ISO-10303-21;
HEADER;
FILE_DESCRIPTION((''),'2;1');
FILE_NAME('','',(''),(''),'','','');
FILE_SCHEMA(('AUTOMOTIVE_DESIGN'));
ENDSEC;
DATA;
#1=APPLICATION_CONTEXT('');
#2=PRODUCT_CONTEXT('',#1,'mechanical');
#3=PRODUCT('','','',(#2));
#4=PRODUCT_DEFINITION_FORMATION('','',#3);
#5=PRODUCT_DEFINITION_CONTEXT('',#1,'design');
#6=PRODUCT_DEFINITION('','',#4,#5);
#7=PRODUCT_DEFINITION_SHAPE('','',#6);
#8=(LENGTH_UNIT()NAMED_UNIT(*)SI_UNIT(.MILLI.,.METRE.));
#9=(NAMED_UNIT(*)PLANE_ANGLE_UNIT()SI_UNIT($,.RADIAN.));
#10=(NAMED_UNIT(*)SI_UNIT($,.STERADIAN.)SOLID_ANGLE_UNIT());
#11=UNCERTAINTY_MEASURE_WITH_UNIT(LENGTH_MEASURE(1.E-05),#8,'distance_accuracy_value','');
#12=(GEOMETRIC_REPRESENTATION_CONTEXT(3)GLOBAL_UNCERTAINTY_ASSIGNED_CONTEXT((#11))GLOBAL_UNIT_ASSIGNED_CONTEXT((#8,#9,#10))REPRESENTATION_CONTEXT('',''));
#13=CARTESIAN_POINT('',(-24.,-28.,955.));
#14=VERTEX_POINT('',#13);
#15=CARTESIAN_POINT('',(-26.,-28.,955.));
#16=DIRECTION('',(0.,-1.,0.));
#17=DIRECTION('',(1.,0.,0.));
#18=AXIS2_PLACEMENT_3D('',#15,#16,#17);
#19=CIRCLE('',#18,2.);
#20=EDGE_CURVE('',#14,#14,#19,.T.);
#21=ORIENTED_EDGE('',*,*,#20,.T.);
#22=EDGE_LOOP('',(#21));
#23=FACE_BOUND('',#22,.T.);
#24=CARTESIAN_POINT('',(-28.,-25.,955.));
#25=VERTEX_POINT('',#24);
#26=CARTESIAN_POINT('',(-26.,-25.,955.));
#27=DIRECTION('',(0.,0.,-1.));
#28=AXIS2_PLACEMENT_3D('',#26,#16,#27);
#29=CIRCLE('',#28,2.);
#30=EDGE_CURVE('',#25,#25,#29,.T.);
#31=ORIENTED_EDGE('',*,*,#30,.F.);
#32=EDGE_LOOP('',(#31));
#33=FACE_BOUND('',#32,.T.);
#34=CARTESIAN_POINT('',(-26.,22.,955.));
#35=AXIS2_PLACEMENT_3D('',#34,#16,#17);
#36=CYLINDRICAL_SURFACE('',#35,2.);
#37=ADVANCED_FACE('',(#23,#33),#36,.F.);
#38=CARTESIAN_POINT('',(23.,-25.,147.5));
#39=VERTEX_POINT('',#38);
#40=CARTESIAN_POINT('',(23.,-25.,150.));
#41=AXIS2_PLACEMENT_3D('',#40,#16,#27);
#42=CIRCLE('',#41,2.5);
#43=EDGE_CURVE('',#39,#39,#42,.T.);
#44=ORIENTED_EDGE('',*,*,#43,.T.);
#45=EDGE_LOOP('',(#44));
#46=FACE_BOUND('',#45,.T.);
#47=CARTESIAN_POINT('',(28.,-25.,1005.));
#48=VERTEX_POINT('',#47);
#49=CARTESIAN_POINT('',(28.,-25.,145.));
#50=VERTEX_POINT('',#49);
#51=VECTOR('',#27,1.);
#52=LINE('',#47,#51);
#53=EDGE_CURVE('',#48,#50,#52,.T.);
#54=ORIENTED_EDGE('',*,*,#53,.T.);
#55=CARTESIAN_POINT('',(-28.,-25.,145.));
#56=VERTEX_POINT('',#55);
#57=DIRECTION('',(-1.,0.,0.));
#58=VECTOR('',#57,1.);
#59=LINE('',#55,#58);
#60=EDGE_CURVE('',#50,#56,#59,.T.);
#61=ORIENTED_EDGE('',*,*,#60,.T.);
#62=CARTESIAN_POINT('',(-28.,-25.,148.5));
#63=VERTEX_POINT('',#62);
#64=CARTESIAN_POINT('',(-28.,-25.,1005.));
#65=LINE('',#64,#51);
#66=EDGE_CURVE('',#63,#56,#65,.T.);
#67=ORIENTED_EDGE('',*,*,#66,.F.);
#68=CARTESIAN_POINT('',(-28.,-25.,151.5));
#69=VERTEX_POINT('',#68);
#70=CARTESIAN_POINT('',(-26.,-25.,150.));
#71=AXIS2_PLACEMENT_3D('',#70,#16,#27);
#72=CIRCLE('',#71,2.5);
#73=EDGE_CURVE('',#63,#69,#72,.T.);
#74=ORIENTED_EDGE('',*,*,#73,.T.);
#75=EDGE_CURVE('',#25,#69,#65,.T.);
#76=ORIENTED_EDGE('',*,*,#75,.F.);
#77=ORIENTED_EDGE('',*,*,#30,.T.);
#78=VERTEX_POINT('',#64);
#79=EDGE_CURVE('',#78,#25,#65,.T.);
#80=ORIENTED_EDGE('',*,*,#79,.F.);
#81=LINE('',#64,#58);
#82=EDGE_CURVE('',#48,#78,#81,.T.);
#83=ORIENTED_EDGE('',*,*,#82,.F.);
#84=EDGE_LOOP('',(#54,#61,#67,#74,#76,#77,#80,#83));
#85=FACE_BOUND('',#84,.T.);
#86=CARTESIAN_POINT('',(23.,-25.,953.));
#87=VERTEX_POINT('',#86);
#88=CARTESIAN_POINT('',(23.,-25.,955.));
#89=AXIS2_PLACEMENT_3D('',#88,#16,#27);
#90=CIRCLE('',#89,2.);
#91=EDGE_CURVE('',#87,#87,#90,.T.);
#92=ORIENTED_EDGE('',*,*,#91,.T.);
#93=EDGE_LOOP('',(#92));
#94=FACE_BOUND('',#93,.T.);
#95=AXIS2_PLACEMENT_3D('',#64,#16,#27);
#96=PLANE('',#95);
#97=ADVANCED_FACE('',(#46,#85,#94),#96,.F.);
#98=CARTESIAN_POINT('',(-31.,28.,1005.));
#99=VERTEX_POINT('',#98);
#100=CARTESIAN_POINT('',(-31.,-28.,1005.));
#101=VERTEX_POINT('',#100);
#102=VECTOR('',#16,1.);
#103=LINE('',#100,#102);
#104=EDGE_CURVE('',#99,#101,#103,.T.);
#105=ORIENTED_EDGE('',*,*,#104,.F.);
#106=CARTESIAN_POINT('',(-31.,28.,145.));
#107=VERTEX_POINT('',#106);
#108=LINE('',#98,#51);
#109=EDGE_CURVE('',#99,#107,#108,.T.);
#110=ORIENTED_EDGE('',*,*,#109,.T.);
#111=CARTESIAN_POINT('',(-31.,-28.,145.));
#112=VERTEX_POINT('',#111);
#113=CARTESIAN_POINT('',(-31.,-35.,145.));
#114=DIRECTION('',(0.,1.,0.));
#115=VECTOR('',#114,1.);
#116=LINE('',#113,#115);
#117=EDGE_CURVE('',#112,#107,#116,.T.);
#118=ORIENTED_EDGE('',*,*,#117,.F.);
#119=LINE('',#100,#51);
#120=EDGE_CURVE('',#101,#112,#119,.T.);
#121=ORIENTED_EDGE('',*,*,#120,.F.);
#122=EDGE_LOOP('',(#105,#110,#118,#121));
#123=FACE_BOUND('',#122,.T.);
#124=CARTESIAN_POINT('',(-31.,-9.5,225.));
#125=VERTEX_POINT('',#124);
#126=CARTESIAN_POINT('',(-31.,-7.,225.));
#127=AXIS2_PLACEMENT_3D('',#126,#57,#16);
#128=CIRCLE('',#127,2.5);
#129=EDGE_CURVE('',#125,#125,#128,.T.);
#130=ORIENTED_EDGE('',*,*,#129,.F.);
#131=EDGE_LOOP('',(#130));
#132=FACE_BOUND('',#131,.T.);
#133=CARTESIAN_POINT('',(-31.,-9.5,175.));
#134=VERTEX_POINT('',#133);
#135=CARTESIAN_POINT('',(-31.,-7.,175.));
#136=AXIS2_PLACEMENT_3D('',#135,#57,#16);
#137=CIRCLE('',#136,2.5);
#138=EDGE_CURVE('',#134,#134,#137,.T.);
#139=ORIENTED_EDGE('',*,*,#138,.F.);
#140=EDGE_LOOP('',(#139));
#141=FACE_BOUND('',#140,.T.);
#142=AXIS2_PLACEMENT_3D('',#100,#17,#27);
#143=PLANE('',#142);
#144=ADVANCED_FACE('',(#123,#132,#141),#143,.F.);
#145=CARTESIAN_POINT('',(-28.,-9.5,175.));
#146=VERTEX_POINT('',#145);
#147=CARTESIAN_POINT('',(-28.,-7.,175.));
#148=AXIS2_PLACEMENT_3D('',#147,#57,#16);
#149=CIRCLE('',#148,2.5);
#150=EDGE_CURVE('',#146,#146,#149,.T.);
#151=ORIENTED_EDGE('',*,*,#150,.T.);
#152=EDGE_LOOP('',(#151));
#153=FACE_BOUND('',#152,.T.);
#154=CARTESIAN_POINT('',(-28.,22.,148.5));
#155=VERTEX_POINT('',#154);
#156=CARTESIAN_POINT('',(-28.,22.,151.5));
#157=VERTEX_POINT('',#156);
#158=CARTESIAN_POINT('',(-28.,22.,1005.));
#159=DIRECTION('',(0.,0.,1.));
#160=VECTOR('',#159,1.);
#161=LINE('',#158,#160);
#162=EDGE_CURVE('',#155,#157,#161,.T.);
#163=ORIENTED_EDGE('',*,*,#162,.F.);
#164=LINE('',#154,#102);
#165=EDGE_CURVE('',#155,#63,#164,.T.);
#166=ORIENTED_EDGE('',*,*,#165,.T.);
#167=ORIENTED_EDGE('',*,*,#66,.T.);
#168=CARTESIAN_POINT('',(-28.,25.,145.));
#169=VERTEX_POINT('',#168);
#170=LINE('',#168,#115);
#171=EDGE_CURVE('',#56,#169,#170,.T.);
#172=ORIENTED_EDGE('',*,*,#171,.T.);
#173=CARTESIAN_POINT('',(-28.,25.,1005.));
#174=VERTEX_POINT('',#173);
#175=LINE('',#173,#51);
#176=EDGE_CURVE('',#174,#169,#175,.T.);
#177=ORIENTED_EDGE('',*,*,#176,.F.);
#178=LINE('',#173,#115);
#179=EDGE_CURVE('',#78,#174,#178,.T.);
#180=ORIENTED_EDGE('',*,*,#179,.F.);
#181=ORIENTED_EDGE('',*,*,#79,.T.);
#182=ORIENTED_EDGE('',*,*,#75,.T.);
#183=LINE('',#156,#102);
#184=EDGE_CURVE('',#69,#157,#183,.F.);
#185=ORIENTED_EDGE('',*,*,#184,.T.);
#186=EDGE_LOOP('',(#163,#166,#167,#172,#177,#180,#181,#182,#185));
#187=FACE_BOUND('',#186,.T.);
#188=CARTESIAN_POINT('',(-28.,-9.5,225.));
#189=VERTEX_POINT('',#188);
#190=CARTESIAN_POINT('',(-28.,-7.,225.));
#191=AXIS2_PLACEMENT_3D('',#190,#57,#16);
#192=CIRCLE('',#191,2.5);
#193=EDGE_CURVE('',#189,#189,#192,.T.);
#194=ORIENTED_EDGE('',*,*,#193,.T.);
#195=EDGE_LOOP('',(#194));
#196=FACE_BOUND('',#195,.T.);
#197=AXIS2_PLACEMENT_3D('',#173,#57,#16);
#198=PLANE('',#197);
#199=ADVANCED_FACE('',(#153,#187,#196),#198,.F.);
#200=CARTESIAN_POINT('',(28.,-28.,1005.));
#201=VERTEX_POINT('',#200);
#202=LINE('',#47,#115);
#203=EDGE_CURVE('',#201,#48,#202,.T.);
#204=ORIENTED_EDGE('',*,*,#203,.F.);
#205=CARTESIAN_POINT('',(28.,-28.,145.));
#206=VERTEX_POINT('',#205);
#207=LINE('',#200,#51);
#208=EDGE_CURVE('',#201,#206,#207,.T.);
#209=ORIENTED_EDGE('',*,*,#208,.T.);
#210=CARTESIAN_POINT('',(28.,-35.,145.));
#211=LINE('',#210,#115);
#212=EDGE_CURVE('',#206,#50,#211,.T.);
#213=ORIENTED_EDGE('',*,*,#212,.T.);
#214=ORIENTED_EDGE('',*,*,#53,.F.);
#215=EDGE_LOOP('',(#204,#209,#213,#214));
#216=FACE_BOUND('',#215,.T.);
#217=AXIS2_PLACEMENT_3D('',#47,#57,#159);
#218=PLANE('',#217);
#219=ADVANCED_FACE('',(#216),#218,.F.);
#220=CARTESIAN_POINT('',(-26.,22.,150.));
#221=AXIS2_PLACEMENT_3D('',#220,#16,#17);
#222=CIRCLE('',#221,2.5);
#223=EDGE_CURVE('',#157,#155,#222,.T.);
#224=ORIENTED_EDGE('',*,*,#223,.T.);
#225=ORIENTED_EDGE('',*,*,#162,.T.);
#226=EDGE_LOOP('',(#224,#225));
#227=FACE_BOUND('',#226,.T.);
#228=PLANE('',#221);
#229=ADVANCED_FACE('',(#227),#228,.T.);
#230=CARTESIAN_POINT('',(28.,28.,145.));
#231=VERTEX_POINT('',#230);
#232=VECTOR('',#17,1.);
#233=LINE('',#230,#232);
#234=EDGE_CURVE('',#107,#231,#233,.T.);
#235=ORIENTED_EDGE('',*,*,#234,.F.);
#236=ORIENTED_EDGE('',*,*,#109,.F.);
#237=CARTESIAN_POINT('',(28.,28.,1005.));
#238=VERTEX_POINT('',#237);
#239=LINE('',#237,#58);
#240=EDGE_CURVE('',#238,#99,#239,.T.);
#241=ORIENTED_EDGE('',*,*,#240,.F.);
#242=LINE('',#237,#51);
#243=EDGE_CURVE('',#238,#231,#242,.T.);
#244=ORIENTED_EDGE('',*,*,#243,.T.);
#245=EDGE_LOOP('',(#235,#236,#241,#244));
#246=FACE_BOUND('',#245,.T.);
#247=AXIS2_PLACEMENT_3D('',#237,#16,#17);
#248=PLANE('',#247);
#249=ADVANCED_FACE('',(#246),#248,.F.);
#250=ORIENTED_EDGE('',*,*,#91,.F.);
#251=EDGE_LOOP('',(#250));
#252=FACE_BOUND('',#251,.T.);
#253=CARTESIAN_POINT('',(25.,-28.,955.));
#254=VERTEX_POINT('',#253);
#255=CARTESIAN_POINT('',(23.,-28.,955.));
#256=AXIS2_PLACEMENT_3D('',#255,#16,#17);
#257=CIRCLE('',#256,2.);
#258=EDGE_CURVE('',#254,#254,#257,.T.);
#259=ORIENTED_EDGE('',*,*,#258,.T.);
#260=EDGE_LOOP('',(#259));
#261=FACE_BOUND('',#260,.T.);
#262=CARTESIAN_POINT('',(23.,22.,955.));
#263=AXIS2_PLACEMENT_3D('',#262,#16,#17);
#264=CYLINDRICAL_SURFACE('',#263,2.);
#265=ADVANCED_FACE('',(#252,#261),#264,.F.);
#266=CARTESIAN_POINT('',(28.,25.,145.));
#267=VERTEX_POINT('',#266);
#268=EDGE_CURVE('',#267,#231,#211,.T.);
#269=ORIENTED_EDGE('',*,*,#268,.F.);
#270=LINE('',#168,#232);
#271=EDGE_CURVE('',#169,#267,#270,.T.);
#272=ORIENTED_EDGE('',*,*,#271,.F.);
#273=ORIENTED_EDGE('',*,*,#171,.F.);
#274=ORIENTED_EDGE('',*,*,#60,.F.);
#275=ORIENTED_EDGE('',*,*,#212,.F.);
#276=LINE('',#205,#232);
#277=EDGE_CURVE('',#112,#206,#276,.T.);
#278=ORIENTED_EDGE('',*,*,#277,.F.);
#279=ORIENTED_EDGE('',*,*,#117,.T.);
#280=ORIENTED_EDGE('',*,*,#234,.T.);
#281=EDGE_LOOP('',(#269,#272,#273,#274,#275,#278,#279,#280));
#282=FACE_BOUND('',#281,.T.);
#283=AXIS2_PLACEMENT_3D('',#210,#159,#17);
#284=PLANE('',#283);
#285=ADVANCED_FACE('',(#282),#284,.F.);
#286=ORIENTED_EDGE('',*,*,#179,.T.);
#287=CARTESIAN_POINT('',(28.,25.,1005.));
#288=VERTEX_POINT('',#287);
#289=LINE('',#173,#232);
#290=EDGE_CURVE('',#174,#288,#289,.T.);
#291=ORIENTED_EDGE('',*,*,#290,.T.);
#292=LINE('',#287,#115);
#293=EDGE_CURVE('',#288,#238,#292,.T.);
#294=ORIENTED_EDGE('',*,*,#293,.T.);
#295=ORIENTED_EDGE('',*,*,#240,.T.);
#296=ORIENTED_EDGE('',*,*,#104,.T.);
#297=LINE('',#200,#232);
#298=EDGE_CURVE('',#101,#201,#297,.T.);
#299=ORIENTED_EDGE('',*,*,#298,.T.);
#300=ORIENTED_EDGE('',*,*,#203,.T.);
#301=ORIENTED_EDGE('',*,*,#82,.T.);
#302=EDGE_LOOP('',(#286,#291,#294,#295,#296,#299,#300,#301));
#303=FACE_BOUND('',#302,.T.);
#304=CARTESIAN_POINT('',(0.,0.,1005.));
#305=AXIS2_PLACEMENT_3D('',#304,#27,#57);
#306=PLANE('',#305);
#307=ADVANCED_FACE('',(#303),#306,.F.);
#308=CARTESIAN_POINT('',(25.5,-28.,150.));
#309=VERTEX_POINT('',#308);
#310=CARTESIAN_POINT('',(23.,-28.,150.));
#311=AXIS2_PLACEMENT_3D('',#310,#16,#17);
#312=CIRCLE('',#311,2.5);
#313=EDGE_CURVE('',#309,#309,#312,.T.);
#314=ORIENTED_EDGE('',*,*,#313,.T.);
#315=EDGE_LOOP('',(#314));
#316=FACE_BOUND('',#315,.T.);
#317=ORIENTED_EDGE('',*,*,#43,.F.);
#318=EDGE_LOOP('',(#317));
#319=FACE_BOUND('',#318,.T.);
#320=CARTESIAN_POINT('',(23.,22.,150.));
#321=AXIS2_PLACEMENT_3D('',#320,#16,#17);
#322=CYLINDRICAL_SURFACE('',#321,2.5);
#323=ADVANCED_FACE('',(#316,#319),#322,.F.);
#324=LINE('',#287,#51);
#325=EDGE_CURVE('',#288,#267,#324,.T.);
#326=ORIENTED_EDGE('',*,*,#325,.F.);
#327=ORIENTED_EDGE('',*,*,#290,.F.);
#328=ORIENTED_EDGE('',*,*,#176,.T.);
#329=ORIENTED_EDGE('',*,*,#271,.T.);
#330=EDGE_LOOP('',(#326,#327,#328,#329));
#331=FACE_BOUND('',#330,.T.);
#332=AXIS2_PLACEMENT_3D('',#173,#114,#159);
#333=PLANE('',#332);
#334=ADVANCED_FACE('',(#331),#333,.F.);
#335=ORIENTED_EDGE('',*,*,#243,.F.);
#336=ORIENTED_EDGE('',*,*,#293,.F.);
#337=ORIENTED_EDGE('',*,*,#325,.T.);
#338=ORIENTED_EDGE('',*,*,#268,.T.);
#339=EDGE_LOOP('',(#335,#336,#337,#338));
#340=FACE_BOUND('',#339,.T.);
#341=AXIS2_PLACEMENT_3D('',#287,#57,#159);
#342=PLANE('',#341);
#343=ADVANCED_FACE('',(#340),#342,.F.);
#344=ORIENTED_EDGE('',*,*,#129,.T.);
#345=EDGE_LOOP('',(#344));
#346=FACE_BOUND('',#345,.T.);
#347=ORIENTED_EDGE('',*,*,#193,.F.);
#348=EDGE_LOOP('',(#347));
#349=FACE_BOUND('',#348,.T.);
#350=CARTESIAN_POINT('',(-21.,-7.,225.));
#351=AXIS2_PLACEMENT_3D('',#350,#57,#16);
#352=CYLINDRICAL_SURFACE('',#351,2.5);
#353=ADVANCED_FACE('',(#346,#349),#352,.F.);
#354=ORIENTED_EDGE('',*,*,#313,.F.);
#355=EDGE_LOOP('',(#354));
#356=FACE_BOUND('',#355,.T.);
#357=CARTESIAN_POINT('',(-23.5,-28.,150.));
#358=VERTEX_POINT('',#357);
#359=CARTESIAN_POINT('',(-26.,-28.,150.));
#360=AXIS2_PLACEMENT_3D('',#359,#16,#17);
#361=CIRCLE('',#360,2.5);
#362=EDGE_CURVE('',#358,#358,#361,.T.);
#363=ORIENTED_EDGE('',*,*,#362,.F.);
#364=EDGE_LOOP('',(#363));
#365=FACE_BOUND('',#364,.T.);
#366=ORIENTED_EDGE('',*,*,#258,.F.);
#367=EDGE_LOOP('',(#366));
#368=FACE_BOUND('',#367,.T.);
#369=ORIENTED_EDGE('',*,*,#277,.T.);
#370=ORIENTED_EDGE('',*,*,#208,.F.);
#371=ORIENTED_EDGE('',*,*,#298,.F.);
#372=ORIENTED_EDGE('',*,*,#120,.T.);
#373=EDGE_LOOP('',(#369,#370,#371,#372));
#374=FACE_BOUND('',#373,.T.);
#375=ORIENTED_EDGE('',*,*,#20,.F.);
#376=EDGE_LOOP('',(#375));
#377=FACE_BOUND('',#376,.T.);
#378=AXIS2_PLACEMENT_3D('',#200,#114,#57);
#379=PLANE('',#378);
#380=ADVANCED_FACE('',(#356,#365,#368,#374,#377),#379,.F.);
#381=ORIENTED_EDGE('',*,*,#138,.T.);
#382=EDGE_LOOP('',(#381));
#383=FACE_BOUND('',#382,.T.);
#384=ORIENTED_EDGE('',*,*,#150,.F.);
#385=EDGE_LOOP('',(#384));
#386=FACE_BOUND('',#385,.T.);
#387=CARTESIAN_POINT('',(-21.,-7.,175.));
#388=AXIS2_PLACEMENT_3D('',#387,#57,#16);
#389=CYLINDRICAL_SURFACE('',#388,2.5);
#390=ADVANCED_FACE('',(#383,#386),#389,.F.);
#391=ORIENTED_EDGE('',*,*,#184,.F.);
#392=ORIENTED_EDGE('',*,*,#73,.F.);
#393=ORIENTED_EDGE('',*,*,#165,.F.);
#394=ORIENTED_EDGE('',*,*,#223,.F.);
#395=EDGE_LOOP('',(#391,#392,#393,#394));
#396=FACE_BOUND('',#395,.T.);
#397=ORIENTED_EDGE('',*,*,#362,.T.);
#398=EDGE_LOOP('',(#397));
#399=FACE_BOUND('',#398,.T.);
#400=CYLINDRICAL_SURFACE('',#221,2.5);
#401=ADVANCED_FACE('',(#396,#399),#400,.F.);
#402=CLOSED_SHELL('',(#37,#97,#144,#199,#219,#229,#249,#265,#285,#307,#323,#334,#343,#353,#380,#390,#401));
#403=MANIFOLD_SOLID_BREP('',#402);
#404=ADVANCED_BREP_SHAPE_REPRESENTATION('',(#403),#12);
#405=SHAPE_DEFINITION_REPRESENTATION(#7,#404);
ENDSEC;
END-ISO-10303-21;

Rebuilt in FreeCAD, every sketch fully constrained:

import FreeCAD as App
import Part
import Sketcher
from FreeCAD import Vector
Q = App.Units.Quantity


def add_polygon(sketch, points):
    """Adds a closed chain of lines whose ends are joined by coincident constraints."""
    first, n = sketch.GeometryCount, len(points)
    for a, b in zip(points, points[1:] + points[:1]):
        sketch.addGeometry(Part.LineSegment(App.Vector(*a, 0), App.Vector(*b, 0)), False)
    for i in range(n):
        sketch.addConstraint(Sketcher.Constraint("Coincident", first + i, 2, first + (i + 1) % n, 1))

doc = App.newDocument("Part")
body = doc.addObject("PartDesign::Body", "Body")

sketch1 = body.newObject("Sketcher::SketchObject", "Sketch")
sketch1.AttachmentSupport = (doc.getObject("XY_Plane"), [""])
sketch1.MapMode = "FlatFace"
add_polygon(sketch1, [(28, -28), (28, -25), (-28, -25), (-28, 25), (28, 25), (28, 28), (-31, 28), (-31, -28)])
sketch1.addConstraint(Sketcher.Constraint("Vertical", 0))
sketch1.addConstraint(Sketcher.Constraint("Horizontal", 1))
sketch1.addConstraint(Sketcher.Constraint("Vertical", 2))
sketch1.addConstraint(Sketcher.Constraint("Horizontal", 3))
sketch1.addConstraint(Sketcher.Constraint("Vertical", 4))
sketch1.addConstraint(Sketcher.Constraint("Horizontal", 5))
sketch1.addConstraint(Sketcher.Constraint("Vertical", 6))
sketch1.addConstraint(Sketcher.Constraint("Horizontal", 7))
sketch1.addConstraint(Sketcher.Constraint("Symmetric", 0, 2, 2, 2, -1, 1))
sketch1.addConstraint(Sketcher.Constraint("Symmetric", 4, 2, 7, 2, -1))
sketch1.addConstraint(Sketcher.Constraint("Equal", 3, 6))
sketch1.addConstraint(Sketcher.Constraint("DistanceX", 1, 2, 1, 1, Q("56 mm")))
sketch1.addConstraint(Sketcher.Constraint("DistanceX", 5, 2, 5, 1, Q("59 mm")))
sketch1.addConstraint(Sketcher.Constraint("DistanceY", 0, 1, 0, 2, Q("3 mm")))
pad1 = body.newObject("PartDesign::Pad", "Pad")
pad1.Profile = sketch1
pad1.Length = 1005

sketch2 = body.newObject("Sketcher::SketchObject", "Sketch001")
sketch2.AttachmentSupport = (doc.getObject("XZ_Plane"), [""])
sketch2.MapMode = "FlatFace"
sketch2.AttachmentOffset = App.Placement(Vector(0, 0, 28), App.Rotation())
sketch2.addGeometry(Part.Circle(Vector(23, 955, 0), Vector(0, 0, 1), 2), False)
sketch2.addGeometry(Part.Circle(Vector(-26, 955, 0), Vector(0, 0, 1), 2), False)
sketch2.addConstraint(Sketcher.Constraint("Equal", 0, 1))
sketch2.addConstraint(Sketcher.Constraint("Horizontal", 0, 3, 1, 3))
sketch2.addConstraint(Sketcher.Constraint("Diameter", 0, Q("4 mm")))
sketch2.addConstraint(Sketcher.Constraint("DistanceX", -1, 1, 0, 3, Q("23 mm")))
sketch2.addConstraint(Sketcher.Constraint("DistanceY", -1, 1, 0, 3, Q("955 mm")))
sketch2.addConstraint(Sketcher.Constraint("DistanceX", 1, 3, -1, 1, Q("26 mm")))
pocket1 = body.newObject("PartDesign::Pocket", "Pocket")
pocket1.Profile = sketch2
pocket1.Length = 50

sketch3 = body.newObject("Sketcher::SketchObject", "Sketch002")
sketch3.AttachmentSupport = (doc.getObject("XZ_Plane"), [""])
sketch3.MapMode = "FlatFace"
sketch3.AttachmentOffset = App.Placement(Vector(0, 0, 28), App.Rotation())
sketch3.addGeometry(Part.Circle(Vector(-26, 150, 0), Vector(0, 0, 1), 2.5), False)
sketch3.addGeometry(Part.Circle(Vector(23, 150, 0), Vector(0, 0, 1), 2.5), False)
sketch3.addConstraint(Sketcher.Constraint("Equal", 0, 1))
sketch3.addConstraint(Sketcher.Constraint("Horizontal", 0, 3, 1, 3))
sketch3.addConstraint(Sketcher.Constraint("Diameter", 0, Q("5 mm")))
sketch3.addConstraint(Sketcher.Constraint("DistanceX", 0, 3, -1, 1, Q("26 mm")))
sketch3.addConstraint(Sketcher.Constraint("DistanceY", -1, 1, 0, 3, Q("150 mm")))
sketch3.addConstraint(Sketcher.Constraint("DistanceX", -1, 1, 1, 3, Q("23 mm")))
pocket2 = body.newObject("PartDesign::Pocket", "Pocket001")
pocket2.Profile = sketch3
pocket2.Length = 50

sketch4 = body.newObject("Sketcher::SketchObject", "Sketch003")
sketch4.AttachmentSupport = (doc.getObject("XZ_Plane"), [""])
sketch4.MapMode = "FlatFace"
sketch4.AttachmentOffset = App.Placement(Vector(0, 0, -28), App.Rotation())
add_polygon(sketch4, [(-31, 0), (-31, 145), (28, 145), (28, 0)])
sketch4.addConstraint(Sketcher.Constraint("Vertical", 0))
sketch4.addConstraint(Sketcher.Constraint("Horizontal", 1))
sketch4.addConstraint(Sketcher.Constraint("Vertical", 2))
sketch4.addConstraint(Sketcher.Constraint("Horizontal", 3))
sketch4.addConstraint(Sketcher.Constraint("PointOnObject", 2, 2, -1))
sketch4.addConstraint(Sketcher.Constraint("DistanceX", 1, 1, 1, 2, Q("59 mm")))
sketch4.addConstraint(Sketcher.Constraint("DistanceY", 0, 1, 0, 2, Q("145 mm")))
sketch4.addConstraint(Sketcher.Constraint("DistanceX", 0, 2, -1, 1, Q("31 mm")))
pocket3 = body.newObject("PartDesign::Pocket", "Pocket002")
pocket3.Profile = sketch4
pocket3.Length = 63
pocket3.Reversed = True

sketch5 = body.newObject("Sketcher::SketchObject", "Sketch004")
sketch5.AttachmentSupport = (doc.getObject("YZ_Plane"), [""])
sketch5.MapMode = "FlatFace"
sketch5.AttachmentOffset = App.Placement(Vector(0, 0, -31), App.Rotation())
sketch5.addGeometry(Part.Circle(Vector(-7, 175, 0), Vector(0, 0, 1), 2.5), False)
sketch5.addGeometry(Part.Circle(Vector(-7, 225, 0), Vector(0, 0, 1), 2.5), False)
sketch5.addConstraint(Sketcher.Constraint("Equal", 0, 1))
sketch5.addConstraint(Sketcher.Constraint("Vertical", 0, 3, 1, 3))
sketch5.addConstraint(Sketcher.Constraint("Diameter", 0, Q("5 mm")))
sketch5.addConstraint(Sketcher.Constraint("DistanceX", 0, 3, -1, 1, Q("7 mm")))
sketch5.addConstraint(Sketcher.Constraint("DistanceY", -1, 1, 0, 3, Q("175 mm")))
sketch5.addConstraint(Sketcher.Constraint("DistanceY", -1, 1, 1, 3, Q("225 mm")))
pocket4 = body.newObject("PartDesign::Pocket", "Pocket003")
pocket4.Profile = sketch5
pocket4.Length = 10
pocket4.Reversed = True

doc.recompute()
